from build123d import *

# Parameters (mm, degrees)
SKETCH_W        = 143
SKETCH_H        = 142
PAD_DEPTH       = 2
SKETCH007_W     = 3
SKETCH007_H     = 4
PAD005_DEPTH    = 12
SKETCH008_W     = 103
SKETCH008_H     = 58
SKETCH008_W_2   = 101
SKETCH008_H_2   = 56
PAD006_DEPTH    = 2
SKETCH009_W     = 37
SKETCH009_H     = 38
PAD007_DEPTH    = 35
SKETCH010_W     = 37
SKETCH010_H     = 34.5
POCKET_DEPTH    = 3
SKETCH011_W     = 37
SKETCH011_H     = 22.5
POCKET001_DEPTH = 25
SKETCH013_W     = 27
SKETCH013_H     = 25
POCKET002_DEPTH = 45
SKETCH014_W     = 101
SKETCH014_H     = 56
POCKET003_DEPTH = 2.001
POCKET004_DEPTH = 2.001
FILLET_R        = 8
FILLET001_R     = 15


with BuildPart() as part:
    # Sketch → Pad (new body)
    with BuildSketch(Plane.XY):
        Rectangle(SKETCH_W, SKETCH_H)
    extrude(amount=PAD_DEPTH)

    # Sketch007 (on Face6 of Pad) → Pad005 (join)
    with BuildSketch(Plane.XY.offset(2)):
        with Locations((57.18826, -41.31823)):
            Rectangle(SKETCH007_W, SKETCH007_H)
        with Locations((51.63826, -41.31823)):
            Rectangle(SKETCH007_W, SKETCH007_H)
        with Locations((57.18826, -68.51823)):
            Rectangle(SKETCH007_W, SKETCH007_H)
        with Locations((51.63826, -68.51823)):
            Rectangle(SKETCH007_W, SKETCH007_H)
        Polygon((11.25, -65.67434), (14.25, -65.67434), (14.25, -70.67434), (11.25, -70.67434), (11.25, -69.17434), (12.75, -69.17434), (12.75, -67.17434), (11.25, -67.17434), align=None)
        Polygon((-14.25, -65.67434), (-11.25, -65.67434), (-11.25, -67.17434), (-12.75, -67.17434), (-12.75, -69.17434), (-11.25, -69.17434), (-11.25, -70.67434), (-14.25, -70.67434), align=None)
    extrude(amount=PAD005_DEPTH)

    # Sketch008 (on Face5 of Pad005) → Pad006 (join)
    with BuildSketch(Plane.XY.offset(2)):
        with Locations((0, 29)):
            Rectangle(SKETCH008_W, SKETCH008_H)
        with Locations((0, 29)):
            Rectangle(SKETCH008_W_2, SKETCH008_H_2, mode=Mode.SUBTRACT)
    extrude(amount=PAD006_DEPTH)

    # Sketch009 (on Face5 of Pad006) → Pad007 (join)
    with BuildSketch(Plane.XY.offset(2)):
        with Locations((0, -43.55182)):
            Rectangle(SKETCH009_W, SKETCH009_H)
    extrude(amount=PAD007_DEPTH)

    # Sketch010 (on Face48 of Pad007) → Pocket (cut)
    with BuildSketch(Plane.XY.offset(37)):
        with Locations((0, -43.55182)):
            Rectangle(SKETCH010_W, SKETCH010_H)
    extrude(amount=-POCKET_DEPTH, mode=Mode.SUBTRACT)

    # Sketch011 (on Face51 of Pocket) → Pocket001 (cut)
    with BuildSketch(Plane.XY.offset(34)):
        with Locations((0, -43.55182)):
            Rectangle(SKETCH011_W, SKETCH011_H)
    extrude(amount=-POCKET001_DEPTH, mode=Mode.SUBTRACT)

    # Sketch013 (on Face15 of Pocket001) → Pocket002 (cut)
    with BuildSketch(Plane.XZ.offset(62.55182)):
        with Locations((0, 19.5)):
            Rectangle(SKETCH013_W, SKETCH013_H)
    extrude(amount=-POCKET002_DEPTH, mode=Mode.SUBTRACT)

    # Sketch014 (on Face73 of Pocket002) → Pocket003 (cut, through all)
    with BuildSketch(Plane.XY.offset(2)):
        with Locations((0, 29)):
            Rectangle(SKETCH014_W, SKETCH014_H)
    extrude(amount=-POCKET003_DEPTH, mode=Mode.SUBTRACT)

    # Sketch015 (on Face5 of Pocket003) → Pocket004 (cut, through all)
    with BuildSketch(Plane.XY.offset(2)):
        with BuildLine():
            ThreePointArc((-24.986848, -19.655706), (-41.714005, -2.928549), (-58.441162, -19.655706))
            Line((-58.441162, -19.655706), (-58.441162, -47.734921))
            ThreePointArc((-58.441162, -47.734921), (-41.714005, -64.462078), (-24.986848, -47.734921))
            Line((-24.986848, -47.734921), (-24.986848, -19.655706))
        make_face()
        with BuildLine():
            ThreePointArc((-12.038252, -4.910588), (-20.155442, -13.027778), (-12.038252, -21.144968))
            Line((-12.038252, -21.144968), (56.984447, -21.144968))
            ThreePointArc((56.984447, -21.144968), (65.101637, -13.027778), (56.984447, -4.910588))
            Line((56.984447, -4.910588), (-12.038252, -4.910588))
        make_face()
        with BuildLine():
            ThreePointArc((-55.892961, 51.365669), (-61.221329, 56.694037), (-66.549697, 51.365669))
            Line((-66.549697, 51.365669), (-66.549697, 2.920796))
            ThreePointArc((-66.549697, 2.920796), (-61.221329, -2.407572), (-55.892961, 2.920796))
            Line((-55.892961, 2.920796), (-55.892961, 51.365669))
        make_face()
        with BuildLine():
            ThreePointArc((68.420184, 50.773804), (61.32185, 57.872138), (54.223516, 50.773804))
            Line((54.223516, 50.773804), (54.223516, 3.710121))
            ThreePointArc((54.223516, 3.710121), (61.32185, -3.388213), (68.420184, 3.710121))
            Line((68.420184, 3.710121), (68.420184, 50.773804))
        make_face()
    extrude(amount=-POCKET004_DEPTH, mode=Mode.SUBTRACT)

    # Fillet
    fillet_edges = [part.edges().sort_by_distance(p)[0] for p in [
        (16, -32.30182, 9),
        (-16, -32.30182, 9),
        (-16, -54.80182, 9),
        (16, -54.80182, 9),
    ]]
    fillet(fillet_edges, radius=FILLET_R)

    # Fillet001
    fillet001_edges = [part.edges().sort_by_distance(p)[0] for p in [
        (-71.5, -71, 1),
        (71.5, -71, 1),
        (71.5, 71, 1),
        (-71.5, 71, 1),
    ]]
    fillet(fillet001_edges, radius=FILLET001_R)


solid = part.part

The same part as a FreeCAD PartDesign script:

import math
import FreeCAD as App
import Part
import Sketcher
Q = App.Units.Quantity


def edges_at(feature, points):
    """Names of the edges that pass closest to the given points."""
    edges = feature.Shape.Edges
    near = lambda p: min(range(len(edges)), key=lambda i: edges[i].distToShape(Part.Vertex(*p))[0])
    return sorted({f"Edge{near(p) + 1}" for p in points})

doc = App.newDocument("Part")
body = doc.addObject("PartDesign::Body", "Body")

# Sketch on XY plane
sketch1 = doc.addObject("Sketcher::SketchObject", "Sketch")
body.addObject(sketch1)
sketch1.AttachmentSupport = (doc.XY_Plane, [""])
sketch1.MapMode = "FlatFace"
sketch1.addGeometry([
    Part.LineSegment(App.Vector(-71.5, 71, 0), App.Vector(-71.5, -71, 0)),
    Part.LineSegment(App.Vector(-71.5, -71, 0), App.Vector(71.5, -71, 0)),
    Part.LineSegment(App.Vector(71.5, -71, 0), App.Vector(71.5, 71, 0)),
    Part.LineSegment(App.Vector(71.5, 71, 0), App.Vector(-71.5, 71, 0)),
], False)
sketch1.addConstraint([
    Sketcher.Constraint("Coincident", 0, 2, 1, 1),
    Sketcher.Constraint("Coincident", 1, 2, 2, 1),
    Sketcher.Constraint("Coincident", 2, 2, 3, 1),
    Sketcher.Constraint("Coincident", 3, 2, 0, 1),
    Sketcher.Constraint("Vertical", 0),
    Sketcher.Constraint("Horizontal", 1),
    Sketcher.Constraint("Vertical", 2),
    Sketcher.Constraint("Horizontal", 3),
    Sketcher.Constraint("Symmetric", 0, 2, 2, 2, -1, 1),
    Sketcher.Constraint("DistanceX", 1, 1, 1, 2, Q("143 mm")),
    Sketcher.Constraint("DistanceY", 0, 2, 0, 1, Q("142 mm")),
])
pad1 = doc.addObject("PartDesign::Pad", "Pad")
body.addObject(pad1)
pad1.Profile = sketch1
pad1.Length = 2

# Sketch on XY plane
sketch2 = doc.addObject("Sketcher::SketchObject", "Sketch001")
body.addObject(sketch2)
sketch2.AttachmentSupport = (doc.XY_Plane, [""])
sketch2.MapMode = "FlatFace"
sketch2.AttachmentOffset = App.Placement(App.Vector(0, 0, 2), App.Rotation())
sketch2.addGeometry([
    Part.LineSegment(App.Vector(55.68826, -39.31823, 0), App.Vector(55.68826, -43.31823, 0)),  # 0
    Part.LineSegment(App.Vector(55.68826, -43.31823, 0), App.Vector(58.68826, -43.31823, 0)),  # 1
    Part.LineSegment(App.Vector(58.68826, -43.31823, 0), App.Vector(58.68826, -39.31823, 0)),  # 2
    Part.LineSegment(App.Vector(58.68826, -39.31823, 0), App.Vector(55.68826, -39.31823, 0)),  # 3
    Part.LineSegment(App.Vector(50.13826, -39.31823, 0), App.Vector(50.13826, -43.31823, 0)),  # 4
    Part.LineSegment(App.Vector(50.13826, -43.31823, 0), App.Vector(53.13826, -43.31823, 0)),  # 5
    Part.LineSegment(App.Vector(53.13826, -43.31823, 0), App.Vector(53.13826, -39.31823, 0)),  # 6
    Part.LineSegment(App.Vector(53.13826, -39.31823, 0), App.Vector(50.13826, -39.31823, 0)),  # 7
    Part.LineSegment(App.Vector(55.68826, -66.51823, 0), App.Vector(55.68826, -70.51823, 0)),  # 8
    Part.LineSegment(App.Vector(55.68826, -70.51823, 0), App.Vector(58.68826, -70.51823, 0)),  # 9
    Part.LineSegment(App.Vector(58.68826, -70.51823, 0), App.Vector(58.68826, -66.51823, 0)),  # 10
    Part.LineSegment(App.Vector(58.68826, -66.51823, 0), App.Vector(55.68826, -66.51823, 0)),  # 11
    Part.LineSegment(App.Vector(50.13826, -66.51823, 0), App.Vector(50.13826, -70.51823, 0)),  # 12
    Part.LineSegment(App.Vector(50.13826, -70.51823, 0), App.Vector(53.13826, -70.51823, 0)),  # 13
    Part.LineSegment(App.Vector(53.13826, -70.51823, 0), App.Vector(53.13826, -66.51823, 0)),  # 14
    Part.LineSegment(App.Vector(53.13826, -66.51823, 0), App.Vector(50.13826, -66.51823, 0)),  # 15
    Part.LineSegment(App.Vector(14.25, -65.67434, 0), App.Vector(11.25, -65.67434, 0)),  # 16
    Part.LineSegment(App.Vector(11.25, -65.67434, 0), App.Vector(11.25, -67.17434, 0)),  # 17
    Part.LineSegment(App.Vector(11.25, -67.17434, 0), App.Vector(12.75, -67.17434, 0)),  # 18
    Part.LineSegment(App.Vector(12.75, -67.17434, 0), App.Vector(12.75, -69.17434, 0)),  # 19
    Part.LineSegment(App.Vector(12.75, -69.17434, 0), App.Vector(11.25, -69.17434, 0)),  # 20
    Part.LineSegment(App.Vector(11.25, -69.17434, 0), App.Vector(11.25, -70.67434, 0)),  # 21
    Part.LineSegment(App.Vector(11.25, -70.67434, 0), App.Vector(14.25, -70.67434, 0)),  # 22
    Part.LineSegment(App.Vector(14.25, -70.67434, 0), App.Vector(14.25, -65.67434, 0)),  # 23
    Part.LineSegment(App.Vector(-11.25, -65.67434, 0), App.Vector(-14.25, -65.67434, 0)),  # 24
    Part.LineSegment(App.Vector(-14.25, -65.67434, 0), App.Vector(-14.25, -70.67434, 0)),  # 25
    Part.LineSegment(App.Vector(-14.25, -70.67434, 0), App.Vector(-11.25, -70.67434, 0)),  # 26
    Part.LineSegment(App.Vector(-11.25, -70.67434, 0), App.Vector(-11.25, -69.17434, 0)),  # 27
    Part.LineSegment(App.Vector(-11.25, -69.17434, 0), App.Vector(-12.75, -69.17434, 0)),  # 28
    Part.LineSegment(App.Vector(-12.75, -69.17434, 0), App.Vector(-12.75, -67.17434, 0)),  # 29
    Part.LineSegment(App.Vector(-12.75, -67.17434, 0), App.Vector(-11.25, -67.17434, 0)),  # 30
    Part.LineSegment(App.Vector(-11.25, -67.17434, 0), App.Vector(-11.25, -65.67434, 0)),  # 31
], False)
sketch2.addConstraint([
    Sketcher.Constraint("Coincident", 0, 2, 1, 1),
    Sketcher.Constraint("Coincident", 1, 2, 2, 1),
    Sketcher.Constraint("Coincident", 2, 2, 3, 1),
    Sketcher.Constraint("Coincident", 3, 2, 0, 1),
    Sketcher.Constraint("Coincident", 4, 2, 5, 1),
    Sketcher.Constraint("Coincident", 5, 2, 6, 1),
    Sketcher.Constraint("Coincident", 6, 2, 7, 1),
    Sketcher.Constraint("Coincident", 7, 2, 4, 1),
    Sketcher.Constraint("Coincident", 8, 2, 9, 1),
    Sketcher.Constraint("Coincident", 9, 2, 10, 1),
    Sketcher.Constraint("Coincident", 10, 2, 11, 1),
    Sketcher.Constraint("Coincident", 11, 2, 8, 1),
    Sketcher.Constraint("Coincident", 12, 2, 13, 1),
    Sketcher.Constraint("Coincident", 13, 2, 14, 1),
    Sketcher.Constraint("Coincident", 14, 2, 15, 1),
    Sketcher.Constraint("Coincident", 15, 2, 12, 1),
    Sketcher.Constraint("Coincident", 16, 2, 17, 1),
    Sketcher.Constraint("Coincident", 17, 2, 18, 1),
    Sketcher.Constraint("Coincident", 18, 2, 19, 1),
    Sketcher.Constraint("Coincident", 19, 2, 20, 1),
    Sketcher.Constraint("Coincident", 20, 2, 21, 1),
    Sketcher.Constraint("Coincident", 21, 2, 22, 1),
    Sketcher.Constraint("Coincident", 22, 2, 23, 1),
    Sketcher.Constraint("Coincident", 23, 2, 16, 1),
    Sketcher.Constraint("Coincident", 24, 2, 25, 1),
    Sketcher.Constraint("Coincident", 25, 2, 26, 1),
    Sketcher.Constraint("Coincident", 26, 2, 27, 1),
    Sketcher.Constraint("Coincident", 27, 2, 28, 1),
    Sketcher.Constraint("Coincident", 28, 2, 29, 1),
    Sketcher.Constraint("Coincident", 29, 2, 30, 1),
    Sketcher.Constraint("Coincident", 30, 2, 31, 1),
    Sketcher.Constraint("Coincident", 31, 2, 24, 1),
    Sketcher.Constraint("Vertical", 0),
    Sketcher.Constraint("Horizontal", 1),
    Sketcher.Constraint("Vertical", 2),
    Sketcher.Constraint("Horizontal", 3),
    Sketcher.Constraint("Vertical", 4),
    Sketcher.Constraint("Horizontal", 5),
    Sketcher.Constraint("Vertical", 6),
    Sketcher.Constraint("Horizontal", 7),
    Sketcher.Constraint("Vertical", 8),
    Sketcher.Constraint("Horizontal", 9),
    Sketcher.Constraint("Vertical", 10),
    Sketcher.Constraint("Horizontal", 11),
    Sketcher.Constraint("Vertical", 12),
    Sketcher.Constraint("Horizontal", 13),
    Sketcher.Constraint("Vertical", 14),
    Sketcher.Constraint("Horizontal", 15),
    Sketcher.Constraint("Horizontal", 16),
    Sketcher.Constraint("Vertical", 17),
    Sketcher.Constraint("Horizontal", 18),
    Sketcher.Constraint("Vertical", 19),
    Sketcher.Constraint("Horizontal", 20),
    Sketcher.Constraint("Vertical", 21),
    Sketcher.Constraint("Horizontal", 22),
    Sketcher.Constraint("Vertical", 23),
    Sketcher.Constraint("Horizontal", 24),
    Sketcher.Constraint("Vertical", 25),
    Sketcher.Constraint("Horizontal", 26),
    Sketcher.Constraint("Vertical", 27),
    Sketcher.Constraint("Horizontal", 28),
    Sketcher.Constraint("Vertical", 29),
    Sketcher.Constraint("Horizontal", 30),
    Sketcher.Constraint("Vertical", 31),
    Sketcher.Constraint("Symmetric", 23, 2, 24, 2, -2),
    Sketcher.Constraint("Symmetric", 21, 2, 26, 2, -2),
    Sketcher.Constraint("Symmetric", 19, 2, 28, 2, -2),
    Sketcher.Constraint("Symmetric", 17, 2, 30, 2, -2),
    Sketcher.Constraint("Horizontal", 1, 2, 4, 2),
    Sketcher.Constraint("Horizontal", 3, 2, 6, 2),
    Sketcher.Constraint("Horizontal", 9, 2, 12, 2),
    Sketcher.Constraint("Horizontal", 11, 2, 14, 2),
    Sketcher.Constraint("Vertical", 3, 2, 8, 2),
    Sketcher.Constraint("Vertical", 2, 2, 9, 2),
    Sketcher.Constraint("Vertical", 7, 2, 12, 2),
    Sketcher.Constraint("Vertical", 6, 2, 13, 2),
    Sketcher.Constraint("Vertical", 17, 2, 20, 2),
    Sketcher.Constraint("Equal", 3, 5),
    Sketcher.Constraint("Equal", 15, 16),
    Sketcher.Constraint("Equal", 6, 8),
    Sketcher.Constraint("Equal", 30, 17),
    Sketcher.Constraint("Equal", 17, 21),
    Sketcher.Constraint("DistanceX", 1, 1, 1, 2, Q("3 mm")),
    Sketcher.Constraint("DistanceY", 0, 2, 0, 1, Q("4 mm")),
    Sketcher.Constraint("DistanceY", 19, 2, 19, 1, Q("2 mm")),
    Sketcher.Constraint("DistanceY", 23, 1, 23, 2, Q("5 mm")),
    Sketcher.Constraint("DistanceX", 24, 2, 18, 2, Q("27 mm")),
    Sketcher.Constraint("DistanceY", 8, 2, 0, 2, Q("27.2 mm")),
    Sketcher.Constraint("DistanceX", 4, 2, 0, 2, Q("5.55 mm")),
    Sketcher.Constraint("DistanceX", -1, 1, 0, 2, Q("55.68826 mm")),
    Sketcher.Constraint("DistanceY", 0, 2, -1, 1, Q("43.31823 mm")),
    Sketcher.Constraint("DistanceY", 16, 2, -1, 1, Q("65.67434 mm")),
])
pad2 = doc.addObject("PartDesign::Pad", "Pad001")
body.addObject(pad2)
pad2.Profile = sketch2
pad2.Length = 12

# Sketch on XY plane
sketch3 = doc.addObject("Sketcher::SketchObject", "Sketch002")
body.addObject(sketch3)
sketch3.AttachmentSupport = (doc.XY_Plane, [""])
sketch3.MapMode = "FlatFace"
sketch3.AttachmentOffset = App.Placement(App.Vector(0, 0, 2), App.Rotation())
sketch3.addGeometry([
    Part.LineSegment(App.Vector(-51.5, 58, 0), App.Vector(-51.5, 0, 0)),  # 0
    Part.LineSegment(App.Vector(-51.5, 0, 0), App.Vector(51.5, 0, 0)),  # 1
    Part.LineSegment(App.Vector(51.5, 0, 0), App.Vector(51.5, 58, 0)),  # 2
    Part.LineSegment(App.Vector(51.5, 58, 0), App.Vector(-51.5, 58, 0)),  # 3
    Part.LineSegment(App.Vector(50.5, 1, 0), App.Vector(-50.5, 1, 0)),  # 4
    Part.LineSegment(App.Vector(-50.5, 1, 0), App.Vector(-50.5, 57, 0)),  # 5
    Part.LineSegment(App.Vector(-50.5, 57, 0), App.Vector(50.5, 57, 0)),  # 6
    Part.LineSegment(App.Vector(50.5, 57, 0), App.Vector(50.5, 1, 0)),  # 7
], False)
sketch3.addConstraint([
    Sketcher.Constraint("Coincident", 0, 2, 1, 1),
    Sketcher.Constraint("Coincident", 1, 2, 2, 1),
    Sketcher.Constraint("Coincident", 2, 2, 3, 1),
    Sketcher.Constraint("Coincident", 3, 2, 0, 1),
    Sketcher.Constraint("Coincident", 4, 2, 5, 1),
    Sketcher.Constraint("Coincident", 5, 2, 6, 1),
    Sketcher.Constraint("Coincident", 6, 2, 7, 1),
    Sketcher.Constraint("Coincident", 7, 2, 4, 1),
    Sketcher.Constraint("Vertical", 0),
    Sketcher.Constraint("Horizontal", 1),
    Sketcher.Constraint("Vertical", 2),
    Sketcher.Constraint("Horizontal", 3),
    Sketcher.Constraint("Horizontal", 4),
    Sketcher.Constraint("Vertical", 5),
    Sketcher.Constraint("Horizontal", 6),
    Sketcher.Constraint("Vertical", 7),
    Sketcher.Constraint("Symmetric", 0, 2, 1, 2, -1, 1),
    Sketcher.Constraint("DistanceX", 1, 1, 1, 2, Q("103 mm")),
    Sketcher.Constraint("DistanceX", 4, 2, 4, 1, Q("101 mm")),
    Sketcher.Constraint("DistanceY", 0, 2, 0, 1, Q("58 mm")),
    Sketcher.Constraint("DistanceY", 5, 1, 5, 2, Q("56 mm")),
    Sketcher.Constraint("DistanceY", -1, 1, 4, 2, Q("1 mm")),
    Sketcher.Constraint("DistanceX", 0, 2, 4, 2, Q("1 mm")),
])
pad3 = doc.addObject("PartDesign::Pad", "Pad002")
body.addObject(pad3)
pad3.Profile = sketch3
pad3.Length = 2

# Sketch on XY plane
sketch4 = doc.addObject("Sketcher::SketchObject", "Sketch003")
body.addObject(sketch4)
sketch4.AttachmentSupport = (doc.XY_Plane, [""])
sketch4.MapMode = "FlatFace"
sketch4.AttachmentOffset = App.Placement(App.Vector(0, 0, 2), App.Rotation())
sketch4.addGeometry([
    Part.LineSegment(App.Vector(-18.5, -24.55182, 0), App.Vector(-18.5, -62.55182, 0)),
    Part.LineSegment(App.Vector(-18.5, -62.55182, 0), App.Vector(18.5, -62.55182, 0)),
    Part.LineSegment(App.Vector(18.5, -62.55182, 0), App.Vector(18.5, -24.55182, 0)),
    Part.LineSegment(App.Vector(18.5, -24.55182, 0), App.Vector(-18.5, -24.55182, 0)),
], False)
sketch4.addConstraint([
    Sketcher.Constraint("Coincident", 0, 2, 1, 1),
    Sketcher.Constraint("Coincident", 1, 2, 2, 1),
    Sketcher.Constraint("Coincident", 2, 2, 3, 1),
    Sketcher.Constraint("Coincident", 3, 2, 0, 1),
    Sketcher.Constraint("Vertical", 0),
    Sketcher.Constraint("Horizontal", 1),
    Sketcher.Constraint("Vertical", 2),
    Sketcher.Constraint("Horizontal", 3),
    Sketcher.Constraint("DistanceX", 1, 1, 1, 2, Q("37 mm")),
    Sketcher.Constraint("DistanceY", 0, 2, 0, 1, Q("38 mm")),
    Sketcher.Constraint("DistanceX", 0, 2, -1, 1, Q("18.5 mm")),
    Sketcher.Constraint("DistanceY", 0, 2, -1, 1, Q("62.55182 mm")),
])
pad4 = doc.addObject("PartDesign::Pad", "Pad003")
body.addObject(pad4)
pad4.Profile = sketch4
pad4.Length = 35

# Sketch on XY plane
sketch5 = doc.addObject("Sketcher::SketchObject", "Sketch004")
body.addObject(sketch5)
sketch5.AttachmentSupport = (doc.XY_Plane, [""])
sketch5.MapMode = "FlatFace"
sketch5.AttachmentOffset = App.Placement(App.Vector(0, 0, 37), App.Rotation())
sketch5.addGeometry([
    Part.LineSegment(App.Vector(-18.5, -26.30182, 0), App.Vector(-18.5, -60.80182, 0)),
    Part.LineSegment(App.Vector(-18.5, -60.80182, 0), App.Vector(18.5, -60.80182, 0)),
    Part.LineSegment(App.Vector(18.5, -60.80182, 0), App.Vector(18.5, -26.30182, 0)),
    Part.LineSegment(App.Vector(18.5, -26.30182, 0), App.Vector(-18.5, -26.30182, 0)),
], False)
sketch5.addConstraint([
    Sketcher.Constraint("Coincident", 0, 2, 1, 1),
    Sketcher.Constraint("Coincident", 1, 2, 2, 1),
    Sketcher.Constraint("Coincident", 2, 2, 3, 1),
    Sketcher.Constraint("Coincident", 3, 2, 0, 1),
    Sketcher.Constraint("Vertical", 0),
    Sketcher.Constraint("Horizontal", 1),
    Sketcher.Constraint("Vertical", 2),
    Sketcher.Constraint("Horizontal", 3),
    Sketcher.Constraint("DistanceX", 1, 1, 1, 2, Q("37 mm")),
    Sketcher.Constraint("DistanceY", 0, 2, 0, 1, Q("34.5 mm")),
    Sketcher.Constraint("DistanceX", 0, 2, -1, 1, Q("18.5 mm")),
    Sketcher.Constraint("DistanceY", 0, 2, -1, 1, Q("60.80182 mm")),
])
pocket1 = doc.addObject("PartDesign::Pocket", "Pocket")
body.addObject(pocket1)
pocket1.Profile = sketch5
pocket1.Length = 3

# Sketch on XY plane
sketch6 = doc.addObject("Sketcher::SketchObject", "Sketch005")
body.addObject(sketch6)
sketch6.AttachmentSupport = (doc.XY_Plane, [""])
sketch6.MapMode = "FlatFace"
sketch6.AttachmentOffset = App.Placement(App.Vector(0, 0, 34), App.Rotation())
sketch6.addGeometry([
    Part.LineSegment(App.Vector(-18.5, -32.30182, 0), App.Vector(-18.5, -54.80182, 0)),
    Part.LineSegment(App.Vector(-18.5, -54.80182, 0), App.Vector(18.5, -54.80182, 0)),
    Part.LineSegment(App.Vector(18.5, -54.80182, 0), App.Vector(18.5, -32.30182, 0)),
    Part.LineSegment(App.Vector(18.5, -32.30182, 0), App.Vector(-18.5, -32.30182, 0)),
], False)
sketch6.addConstraint([
    Sketcher.Constraint("Coincident", 0, 2, 1, 1),
    Sketcher.Constraint("Coincident", 1, 2, 2, 1),
    Sketcher.Constraint("Coincident", 2, 2, 3, 1),
    Sketcher.Constraint("Coincident", 3, 2, 0, 1),
    Sketcher.Constraint("Vertical", 0),
    Sketcher.Constraint("Horizontal", 1),
    Sketcher.Constraint("Vertical", 2),
    Sketcher.Constraint("Horizontal", 3),
    Sketcher.Constraint("DistanceX", 1, 1, 1, 2, Q("37 mm")),
    Sketcher.Constraint("DistanceY", 0, 2, 0, 1, Q("22.5 mm")),
    Sketcher.Constraint("DistanceX", 0, 2, -1, 1, Q("18.5 mm")),
    Sketcher.Constraint("DistanceY", 0, 2, -1, 1, Q("54.80182 mm")),
])
pocket2 = doc.addObject("PartDesign::Pocket", "Pocket001")
body.addObject(pocket2)
pocket2.Profile = sketch6
pocket2.Length = 25

# Sketch on XZ plane
sketch7 = doc.addObject("Sketcher::SketchObject", "Sketch006")
body.addObject(sketch7)
sketch7.AttachmentSupport = (doc.XZ_Plane, [""])
sketch7.MapMode = "FlatFace"
sketch7.AttachmentOffset = App.Placement(App.Vector(0, 0, 62.55182), App.Rotation())
sketch7.addGeometry([
    Part.LineSegment(App.Vector(-13.5, 32, 0), App.Vector(-13.5, 7, 0)),
    Part.LineSegment(App.Vector(-13.5, 7, 0), App.Vector(13.5, 7, 0)),
    Part.LineSegment(App.Vector(13.5, 7, 0), App.Vector(13.5, 32, 0)),
    Part.LineSegment(App.Vector(13.5, 32, 0), App.Vector(-13.5, 32, 0)),
], False)
sketch7.addConstraint([
    Sketcher.Constraint("Coincident", 0, 2, 1, 1),
    Sketcher.Constraint("Coincident", 1, 2, 2, 1),
    Sketcher.Constraint("Coincident", 2, 2, 3, 1),
    Sketcher.Constraint("Coincident", 3, 2, 0, 1),
    Sketcher.Constraint("Vertical", 0),
    Sketcher.Constraint("Horizontal", 1),
    Sketcher.Constraint("Vertical", 2),
    Sketcher.Constraint("Horizontal", 3),
    Sketcher.Constraint("DistanceX", 1, 1, 1, 2, Q("27 mm")),
    Sketcher.Constraint("DistanceY", 0, 2, 0, 1, Q("25 mm")),
    Sketcher.Constraint("DistanceY", -1, 1, 0, 2, Q("7 mm")),
    Sketcher.Constraint("DistanceX", 0, 2, -1, 1, Q("13.5 mm")),
])
pocket3 = doc.addObject("PartDesign::Pocket", "Pocket002")
body.addObject(pocket3)
pocket3.Profile = sketch7
pocket3.Length = 45

# Sketch on XY plane
sketch8 = doc.addObject("Sketcher::SketchObject", "Sketch007")
body.addObject(sketch8)
sketch8.AttachmentSupport = (doc.XY_Plane, [""])
sketch8.MapMode = "FlatFace"
sketch8.AttachmentOffset = App.Placement(App.Vector(0, 0, 2), App.Rotation())
sketch8.addGeometry([
    Part.LineSegment(App.Vector(-50.5, 57, 0), App.Vector(-50.5, 1, 0)),
    Part.LineSegment(App.Vector(-50.5, 1, 0), App.Vector(50.5, 1, 0)),
    Part.LineSegment(App.Vector(50.5, 1, 0), App.Vector(50.5, 57, 0)),
    Part.LineSegment(App.Vector(50.5, 57, 0), App.Vector(-50.5, 57, 0)),
], False)
sketch8.addConstraint([
    Sketcher.Constraint("Coincident", 0, 2, 1, 1),
    Sketcher.Constraint("Coincident", 1, 2, 2, 1),
    Sketcher.Constraint("Coincident", 2, 2, 3, 1),
    Sketcher.Constraint("Coincident", 3, 2, 0, 1),
    Sketcher.Constraint("Vertical", 0),
    Sketcher.Constraint("Horizontal", 1),
    Sketcher.Constraint("Vertical", 2),
    Sketcher.Constraint("Horizontal", 3),
    Sketcher.Constraint("DistanceX", 1, 1, 1, 2, Q("101 mm")),
    Sketcher.Constraint("DistanceY", 0, 2, 0, 1, Q("56 mm")),
    Sketcher.Constraint("DistanceY", -1, 1, 0, 2, Q("1 mm")),
    Sketcher.Constraint("DistanceX", 0, 2, -1, 1, Q("50.5 mm")),
])
pocket4 = doc.addObject("PartDesign::Pocket", "Pocket003")
body.addObject(pocket4)
pocket4.Profile = sketch8
pocket4.Type = "ThroughAll"

# Sketch on XY plane
sketch9 = doc.addObject("Sketcher::SketchObject", "Sketch008")
body.addObject(sketch9)
sketch9.AttachmentSupport = (doc.XY_Plane, [""])
sketch9.MapMode = "FlatFace"
sketch9.AttachmentOffset = App.Placement(App.Vector(0, 0, 2), App.Rotation())
sketch9.addGeometry([
    Part.ArcOfCircle(Part.Circle(App.Vector(-41.714005, -19.655706, 0), App.Vector(0, 0, 1), 16.727157), math.radians(0), math.radians(180)),  # 0
    Part.LineSegment(App.Vector(-58.441162, -19.655706, 0), App.Vector(-58.441162, -47.734921, 0)),  # 1
    Part.ArcOfCircle(Part.Circle(App.Vector(-41.714005, -47.734921, 0), App.Vector(0, 0, 1), 16.727157), math.radians(180), math.radians(360)),  # 2
    Part.LineSegment(App.Vector(-24.986848, -47.734921, 0), App.Vector(-24.986848, -19.655706, 0)),  # 3
    Part.ArcOfCircle(Part.Circle(App.Vector(-12.038252, -13.027778, 0), App.Vector(0, 0, 1), 8.11719), math.radians(90), math.radians(270)),  # 4
    Part.LineSegment(App.Vector(-12.038252, -21.144968, 0), App.Vector(56.984447, -21.144968, 0)),  # 5
    Part.ArcOfCircle(Part.Circle(App.Vector(56.984447, -13.027778, 0), App.Vector(0, 0, 1), 8.11719), math.radians(-90), math.radians(90)),  # 6
    Part.LineSegment(App.Vector(56.984447, -4.910588, 0), App.Vector(-12.038252, -4.910588, 0)),  # 7
    Part.ArcOfCircle(Part.Circle(App.Vector(-61.221329, 51.365669, 0), App.Vector(0, 0, 1), 5.328368), math.radians(0), math.radians(180)),  # 8
    Part.LineSegment(App.Vector(-66.549697, 51.365669, 0), App.Vector(-66.549697, 2.920796, 0)),  # 9
    Part.ArcOfCircle(Part.Circle(App.Vector(-61.221329, 2.920796, 0), App.Vector(0, 0, 1), 5.328368), math.radians(180), math.radians(360)),  # 10
    Part.LineSegment(App.Vector(-55.892961, 2.920796, 0), App.Vector(-55.892961, 51.365669, 0)),  # 11
    Part.ArcOfCircle(Part.Circle(App.Vector(61.32185, 50.773804, 0), App.Vector(0, 0, 1), 7.098334), math.radians(0), math.radians(180)),  # 12
    Part.LineSegment(App.Vector(54.223516, 50.773804, 0), App.Vector(54.223516, 3.710121, 0)),  # 13
    Part.ArcOfCircle(Part.Circle(App.Vector(61.32185, 3.710121, 0), App.Vector(0, 0, 1), 7.098334), math.radians(180), math.radians(360)),  # 14
    Part.LineSegment(App.Vector(68.420184, 3.710121, 0), App.Vector(68.420184, 50.773804, 0)),  # 15
], False)
sketch9.addConstraint([
    Sketcher.Constraint("Tangent", 0, 2, 1, 1),
    Sketcher.Constraint("Tangent", 1, 2, 2, 1),
    Sketcher.Constraint("Tangent", 2, 2, 3, 1),
    Sketcher.Constraint("Tangent", 3, 2, 0, 1),
    Sketcher.Constraint("Tangent", 4, 2, 5, 1),
    Sketcher.Constraint("Tangent", 5, 2, 6, 1),
    Sketcher.Constraint("Tangent", 6, 2, 7, 1),
    Sketcher.Constraint("Tangent", 7, 2, 4, 1),
    Sketcher.Constraint("Tangent", 8, 2, 9, 1),
    Sketcher.Constraint("Tangent", 9, 2, 10, 1),
    Sketcher.Constraint("Tangent", 10, 2, 11, 1),
    Sketcher.Constraint("Tangent", 11, 2, 8, 1),
    Sketcher.Constraint("Tangent", 12, 2, 13, 1),
    Sketcher.Constraint("Tangent", 13, 2, 14, 1),
    Sketcher.Constraint("Tangent", 14, 2, 15, 1),
    Sketcher.Constraint("Tangent", 15, 2, 12, 1),
    Sketcher.Constraint("Vertical", 1),
    Sketcher.Constraint("Vertical", 3),
    Sketcher.Constraint("Horizontal", 5),
    Sketcher.Constraint("Horizontal", 7),
    Sketcher.Constraint("Vertical", 9),
    Sketcher.Constraint("Vertical", 11),
    Sketcher.Constraint("Vertical", 13),
    Sketcher.Constraint("Vertical", 15),
    Sketcher.Constraint("Radius", 4, Q("8.11719 mm")),
    Sketcher.Constraint("Radius", 8, Q("5.328368 mm")),
    Sketcher.Constraint("DistanceX", 5, 1, 5, 2, Q("69.022699 mm")),
    Sketcher.Constraint("Radius", 0, Q("16.727157 mm")),
    Sketcher.Constraint("Radius", 12, Q("7.098334 mm")),
    Sketcher.Constraint("DistanceY", 0, 3, 10, 3, Q("22.576502 mm")),
    Sketcher.Constraint("DistanceX", 4, 3, 12, 3, Q("73.360102 mm")),
    Sketcher.Constraint("DistanceY", 6, 3, 14, 3, Q("16.737899 mm")),
    Sketcher.Constraint("DistanceX", 0, 2, 10, 2, Q("2.548201 mm")),
    Sketcher.Constraint("DistanceY", 1, 2, 1, 1, Q("28.079215 mm")),
    Sketcher.Constraint("DistanceY", 9, 2, 9, 1, Q("48.444873 mm")),
    Sketcher.Constraint("DistanceY", 13, 2, 13, 1, Q("47.063683 mm")),
    Sketcher.Constraint("DistanceY", 2, 3, -1, 1, Q("47.734921 mm")),
    Sketcher.Constraint("DistanceX", 8, 3, -1, 1, Q("61.221329 mm")),
    Sketcher.Constraint("DistanceX", -1, 1, 12, 3, Q("61.32185 mm")),
    Sketcher.Constraint("DistanceY", -1, 1, 14, 3, Q("3.710121 mm")),
])
pocket5 = doc.addObject("PartDesign::Pocket", "Pocket004")
body.addObject(pocket5)
pocket5.Profile = sketch9
pocket5.Type = "ThroughAll"
doc.recompute()

fillet = doc.addObject("PartDesign::Fillet", "Fillet")
body.addObject(fillet)
fillet.Base = (pocket5, edges_at(pocket5, [
    (16, -32.302, 9),
    (-16, -32.302, 9),
    (-16, -54.802, 9),
    (16, -54.802, 9),
]))
fillet.Radius = 8
doc.recompute()

fillet2 = doc.addObject("PartDesign::Fillet", "Fillet001")
body.addObject(fillet2)
fillet2.Base = (fillet, edges_at(fillet, [
    (-71.5, -71, 1),
    (71.5, -71, 1),
    (71.5, 71, 1),
    (-71.5, 71, 1),
]))
fillet2.Radius = 15

doc.recompute()
